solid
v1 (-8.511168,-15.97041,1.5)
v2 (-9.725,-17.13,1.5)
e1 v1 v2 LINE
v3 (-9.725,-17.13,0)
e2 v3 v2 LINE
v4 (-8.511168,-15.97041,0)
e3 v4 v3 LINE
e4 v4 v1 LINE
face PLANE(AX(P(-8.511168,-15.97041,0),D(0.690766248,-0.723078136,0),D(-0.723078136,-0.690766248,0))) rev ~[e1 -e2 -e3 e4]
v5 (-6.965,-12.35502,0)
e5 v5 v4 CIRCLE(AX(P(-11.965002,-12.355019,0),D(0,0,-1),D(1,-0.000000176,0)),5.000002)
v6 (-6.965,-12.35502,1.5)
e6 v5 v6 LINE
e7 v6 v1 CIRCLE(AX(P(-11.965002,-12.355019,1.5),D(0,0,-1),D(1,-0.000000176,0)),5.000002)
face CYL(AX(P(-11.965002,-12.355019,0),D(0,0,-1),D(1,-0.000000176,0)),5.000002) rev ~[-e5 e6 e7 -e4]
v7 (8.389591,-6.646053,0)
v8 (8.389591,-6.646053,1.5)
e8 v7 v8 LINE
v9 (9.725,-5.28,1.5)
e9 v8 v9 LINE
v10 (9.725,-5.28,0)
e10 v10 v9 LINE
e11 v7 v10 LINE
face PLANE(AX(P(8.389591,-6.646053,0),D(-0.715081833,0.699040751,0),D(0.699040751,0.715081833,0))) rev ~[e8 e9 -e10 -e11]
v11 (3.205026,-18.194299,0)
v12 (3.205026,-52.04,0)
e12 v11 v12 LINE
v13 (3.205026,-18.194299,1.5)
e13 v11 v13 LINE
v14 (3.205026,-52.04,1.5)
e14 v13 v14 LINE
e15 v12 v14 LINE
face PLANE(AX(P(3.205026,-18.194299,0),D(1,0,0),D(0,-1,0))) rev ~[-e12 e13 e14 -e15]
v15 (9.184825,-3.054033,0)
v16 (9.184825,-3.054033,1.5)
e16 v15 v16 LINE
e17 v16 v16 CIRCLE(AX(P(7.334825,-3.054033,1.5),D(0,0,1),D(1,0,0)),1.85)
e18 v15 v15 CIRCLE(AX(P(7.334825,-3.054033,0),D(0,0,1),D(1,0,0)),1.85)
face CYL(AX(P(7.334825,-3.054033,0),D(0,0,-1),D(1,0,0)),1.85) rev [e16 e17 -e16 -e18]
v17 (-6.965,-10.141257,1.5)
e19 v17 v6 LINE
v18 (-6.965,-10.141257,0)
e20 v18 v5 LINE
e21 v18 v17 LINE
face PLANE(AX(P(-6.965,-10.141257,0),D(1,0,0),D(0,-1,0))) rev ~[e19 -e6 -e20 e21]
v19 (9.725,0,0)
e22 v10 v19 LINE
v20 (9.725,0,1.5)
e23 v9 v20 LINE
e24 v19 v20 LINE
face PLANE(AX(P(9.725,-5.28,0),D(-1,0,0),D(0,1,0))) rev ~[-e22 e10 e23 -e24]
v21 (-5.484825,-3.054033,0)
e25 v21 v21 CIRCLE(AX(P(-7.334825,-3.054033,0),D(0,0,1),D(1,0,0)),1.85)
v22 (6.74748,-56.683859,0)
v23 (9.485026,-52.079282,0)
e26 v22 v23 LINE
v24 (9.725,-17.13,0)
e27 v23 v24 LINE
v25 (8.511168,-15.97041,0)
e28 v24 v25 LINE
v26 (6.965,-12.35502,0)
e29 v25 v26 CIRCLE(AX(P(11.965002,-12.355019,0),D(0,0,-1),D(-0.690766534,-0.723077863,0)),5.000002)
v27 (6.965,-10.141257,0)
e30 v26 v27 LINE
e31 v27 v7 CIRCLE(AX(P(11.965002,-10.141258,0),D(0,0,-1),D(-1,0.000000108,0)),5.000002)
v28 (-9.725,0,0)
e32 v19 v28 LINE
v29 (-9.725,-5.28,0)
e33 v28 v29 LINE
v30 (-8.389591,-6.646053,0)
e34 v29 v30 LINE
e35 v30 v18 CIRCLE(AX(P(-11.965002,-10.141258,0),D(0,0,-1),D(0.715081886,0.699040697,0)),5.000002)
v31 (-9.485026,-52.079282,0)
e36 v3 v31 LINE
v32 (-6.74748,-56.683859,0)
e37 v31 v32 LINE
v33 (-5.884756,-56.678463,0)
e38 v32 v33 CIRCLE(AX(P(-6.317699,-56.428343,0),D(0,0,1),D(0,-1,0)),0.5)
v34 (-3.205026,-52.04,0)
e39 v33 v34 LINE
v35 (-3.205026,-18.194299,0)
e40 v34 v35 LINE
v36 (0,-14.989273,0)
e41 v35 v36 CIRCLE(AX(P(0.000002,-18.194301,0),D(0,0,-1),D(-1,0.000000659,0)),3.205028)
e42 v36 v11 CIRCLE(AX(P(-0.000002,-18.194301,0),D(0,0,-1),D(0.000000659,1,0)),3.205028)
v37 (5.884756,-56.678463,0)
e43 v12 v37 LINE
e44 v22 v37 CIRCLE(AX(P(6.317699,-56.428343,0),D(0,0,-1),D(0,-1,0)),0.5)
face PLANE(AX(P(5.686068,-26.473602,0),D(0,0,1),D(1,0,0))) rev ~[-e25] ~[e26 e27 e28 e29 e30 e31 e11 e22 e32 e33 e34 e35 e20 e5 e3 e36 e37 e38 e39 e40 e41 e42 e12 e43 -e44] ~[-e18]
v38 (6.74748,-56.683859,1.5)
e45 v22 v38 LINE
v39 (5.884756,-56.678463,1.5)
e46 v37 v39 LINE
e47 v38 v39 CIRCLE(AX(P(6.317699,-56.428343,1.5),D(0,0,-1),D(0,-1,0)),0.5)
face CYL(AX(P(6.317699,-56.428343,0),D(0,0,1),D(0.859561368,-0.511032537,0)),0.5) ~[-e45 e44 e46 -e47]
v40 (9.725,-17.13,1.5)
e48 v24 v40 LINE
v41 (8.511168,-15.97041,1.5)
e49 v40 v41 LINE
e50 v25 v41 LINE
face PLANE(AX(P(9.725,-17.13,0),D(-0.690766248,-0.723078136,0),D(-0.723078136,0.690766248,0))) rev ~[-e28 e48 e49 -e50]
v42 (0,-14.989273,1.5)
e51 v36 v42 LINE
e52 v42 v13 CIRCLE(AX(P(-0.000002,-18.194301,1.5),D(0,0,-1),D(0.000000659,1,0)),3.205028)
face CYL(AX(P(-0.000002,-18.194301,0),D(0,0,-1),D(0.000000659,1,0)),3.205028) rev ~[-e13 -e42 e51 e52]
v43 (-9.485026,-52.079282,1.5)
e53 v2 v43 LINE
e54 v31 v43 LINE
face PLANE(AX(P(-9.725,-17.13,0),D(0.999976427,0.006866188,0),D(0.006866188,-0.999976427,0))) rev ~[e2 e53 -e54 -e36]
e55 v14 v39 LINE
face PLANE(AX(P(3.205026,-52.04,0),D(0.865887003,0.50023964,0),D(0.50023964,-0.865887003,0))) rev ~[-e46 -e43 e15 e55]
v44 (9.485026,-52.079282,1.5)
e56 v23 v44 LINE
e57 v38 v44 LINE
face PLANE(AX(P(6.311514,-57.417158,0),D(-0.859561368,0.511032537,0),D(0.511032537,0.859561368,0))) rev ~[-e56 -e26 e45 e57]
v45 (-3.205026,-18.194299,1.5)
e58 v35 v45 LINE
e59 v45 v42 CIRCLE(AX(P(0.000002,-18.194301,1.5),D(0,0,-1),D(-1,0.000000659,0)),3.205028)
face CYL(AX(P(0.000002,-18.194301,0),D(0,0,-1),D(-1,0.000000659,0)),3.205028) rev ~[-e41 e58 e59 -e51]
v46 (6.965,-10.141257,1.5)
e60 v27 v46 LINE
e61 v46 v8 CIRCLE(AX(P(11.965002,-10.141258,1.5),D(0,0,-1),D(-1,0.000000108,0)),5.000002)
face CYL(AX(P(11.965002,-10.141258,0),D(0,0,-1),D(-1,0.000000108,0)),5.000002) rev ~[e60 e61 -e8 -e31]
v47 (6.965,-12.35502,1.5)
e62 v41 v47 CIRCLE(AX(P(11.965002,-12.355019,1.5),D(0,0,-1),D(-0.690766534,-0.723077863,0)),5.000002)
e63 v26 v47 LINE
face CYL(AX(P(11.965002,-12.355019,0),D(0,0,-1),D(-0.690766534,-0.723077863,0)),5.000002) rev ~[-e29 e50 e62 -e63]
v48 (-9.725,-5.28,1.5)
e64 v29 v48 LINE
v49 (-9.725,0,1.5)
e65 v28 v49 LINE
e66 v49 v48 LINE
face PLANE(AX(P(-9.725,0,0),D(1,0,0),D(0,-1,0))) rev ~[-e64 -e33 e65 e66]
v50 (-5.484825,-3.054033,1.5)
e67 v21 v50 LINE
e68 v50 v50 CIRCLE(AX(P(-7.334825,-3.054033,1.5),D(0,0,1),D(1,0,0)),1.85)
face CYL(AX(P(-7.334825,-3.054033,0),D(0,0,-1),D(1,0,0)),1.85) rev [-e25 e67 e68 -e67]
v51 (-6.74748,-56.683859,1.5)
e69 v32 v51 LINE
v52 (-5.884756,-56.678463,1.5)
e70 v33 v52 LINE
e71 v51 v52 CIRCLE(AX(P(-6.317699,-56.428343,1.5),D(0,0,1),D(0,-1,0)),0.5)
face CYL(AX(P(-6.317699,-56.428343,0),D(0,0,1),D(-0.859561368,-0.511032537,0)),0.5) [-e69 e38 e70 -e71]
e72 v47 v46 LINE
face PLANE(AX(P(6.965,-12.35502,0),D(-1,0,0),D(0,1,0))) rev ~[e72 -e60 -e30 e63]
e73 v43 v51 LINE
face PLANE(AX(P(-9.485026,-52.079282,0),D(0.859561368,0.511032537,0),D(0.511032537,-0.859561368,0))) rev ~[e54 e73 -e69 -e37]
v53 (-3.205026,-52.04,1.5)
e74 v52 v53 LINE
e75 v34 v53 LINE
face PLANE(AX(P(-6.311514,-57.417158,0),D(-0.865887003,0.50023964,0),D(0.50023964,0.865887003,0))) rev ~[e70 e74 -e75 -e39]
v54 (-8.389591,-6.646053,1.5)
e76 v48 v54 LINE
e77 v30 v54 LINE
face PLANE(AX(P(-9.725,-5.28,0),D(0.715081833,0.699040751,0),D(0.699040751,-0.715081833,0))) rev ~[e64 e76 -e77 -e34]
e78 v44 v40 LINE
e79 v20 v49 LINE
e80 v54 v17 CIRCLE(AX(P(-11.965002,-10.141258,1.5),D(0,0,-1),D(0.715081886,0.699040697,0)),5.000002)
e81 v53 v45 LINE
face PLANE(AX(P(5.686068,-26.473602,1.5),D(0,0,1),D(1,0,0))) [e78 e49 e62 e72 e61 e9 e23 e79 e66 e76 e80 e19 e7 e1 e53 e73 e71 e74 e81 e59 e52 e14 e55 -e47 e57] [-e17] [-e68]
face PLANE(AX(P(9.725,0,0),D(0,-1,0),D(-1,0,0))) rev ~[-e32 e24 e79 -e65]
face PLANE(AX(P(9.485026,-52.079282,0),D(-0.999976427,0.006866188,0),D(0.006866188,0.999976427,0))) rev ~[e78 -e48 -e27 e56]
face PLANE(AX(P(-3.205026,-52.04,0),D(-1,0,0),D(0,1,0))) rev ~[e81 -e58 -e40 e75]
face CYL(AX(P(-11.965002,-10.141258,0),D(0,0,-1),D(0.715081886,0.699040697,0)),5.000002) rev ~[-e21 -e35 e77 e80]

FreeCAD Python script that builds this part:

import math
import FreeCAD as App
import Part
import Sketcher
from FreeCAD import Vector


def edges_at(feature, points):
    """Names of the edges that pass closest to the given points."""
    edges = feature.Shape.Edges
    near = lambda p: min(range(len(edges)), key=lambda i: edges[i].distToShape(Part.Vertex(*p))[0])
    return sorted({f"Edge{near(p) + 1}" for p in points})

doc = App.newDocument("Part")
params = doc.addObject("Spreadsheet::Sheet", "Params")
for row, (alias, value) in enumerate([
    ("sketch1_radius", "5.000002 mm"),
    ("sketch1_diameter", "3.7 mm"),
    ("sketch1_width", "19.45 mm"),
    ("sketch1_height", "5.28 mm"),
    ("sketch1_length", "6.21 mm"),
    ("pad1_length", "1.5 mm"),
    ("fillet_radius", "0.5 mm"),
], start=1):
    params.set(f"A{row}", alias)
    params.set(f"B{row}", "=" + value)
    params.setAlias(f"B{row}", alias)

body = doc.addObject("PartDesign::Body", "Body")

# Sketch on XY plane
sketch1 = body.newObject("Sketcher::SketchObject", "Sketch")
sketch1.AttachmentSupport = (doc.getObject("XY_Plane"), [""])
sketch1.MapMode = "FlatFace"
sketch1.addGeometry([
    Part.LineSegment(Vector(9.7, 0, 0), Vector(-9.7, 0, 0)),  # 0
    Part.LineSegment(Vector(-9.7, 0, 0), Vector(-9.7, -5.3, 0)),  # 1
    Part.LineSegment(Vector(-9.7, -5.3, 0), Vector(-8.4, -6.6, 0)),  # 2
    Part.ArcOfCircle(Part.Circle(Vector(-12, -10.1, 0), Vector(0, 0, 1), 5), math.radians(0), math.radians(44)),  # 3
    Part.LineSegment(Vector(-7, -10.1, 0), Vector(-7, -12.4, 0)),  # 4
    Part.ArcOfCircle(Part.Circle(Vector(-12, -12.4, 0), Vector(0, 0, 1), 5), math.radians(-46), math.radians(0)),  # 5
    Part.LineSegment(Vector(-8.5, -16, 0), Vector(-9.7, -17.1, 0)),  # 6
    Part.LineSegment(Vector(-9.7, -17.1, 0), Vector(-9.5, -52.1, 0)),  # 7
    Part.LineSegment(Vector(-9.5, -52.1, 0), Vector(-6.3, -57.4, 0)),  # 8
    Part.LineSegment(Vector(-6.3, -57.4, 0), Vector(-3.2, -52, 0)),  # 9
    Part.LineSegment(Vector(-3.2, -52, 0), Vector(-3.2, -18.2, 0)),  # 10
    Part.ArcOfCircle(Part.Circle(Vector(0, -18.2, 0), Vector(0, 0, 1), 3.2), math.radians(90), math.radians(180)),  # 11
    Part.ArcOfCircle(Part.Circle(Vector(0, -18.2, 0), Vector(0, 0, 1), 3.2), math.radians(0), math.radians(90)),  # 12
    Part.LineSegment(Vector(3.2, -18.2, 0), Vector(3.2, -52, 0)),  # 13
    Part.LineSegment(Vector(3.2, -52, 0), Vector(6.3, -57.4, 0)),  # 14
    Part.LineSegment(Vector(6.3, -57.4, 0), Vector(9.5, -52.1, 0)),  # 15
    Part.LineSegment(Vector(9.5, -52.1, 0), Vector(9.7, -17.1, 0)),  # 16
    Part.LineSegment(Vector(9.7, -17.1, 0), Vector(8.5, -16, 0)),  # 17
    Part.ArcOfCircle(Part.Circle(Vector(12, -12.4, 0), Vector(0, 0, 1), 5), math.radians(-180), math.radians(-134)),  # 18
    Part.LineSegment(Vector(7, -12.4, 0), Vector(7, -10.1, 0)),  # 19
    Part.ArcOfCircle(Part.Circle(Vector(12, -10.1, 0), Vector(0, 0, 1), 5), math.radians(136), math.radians(180)),  # 20
    Part.LineSegment(Vector(8.4, -6.6, 0), Vector(9.7, -5.3, 0)),  # 21
    Part.LineSegment(Vector(9.7, -5.3, 0), Vector(9.7, 0, 0)),  # 22
    Part.Circle(Vector(-7.3, -3.1, 0), Vector(0, 0, 1), 1.9),  # 23
    Part.Circle(Vector(7.3, -3.1, 0), Vector(0, 0, 1), 1.9),  # 24
], False)
sketch1.addConstraint([
    Sketcher.Constraint("Coincident", 0, 2, 1, 1),
    Sketcher.Constraint("Coincident", 1, 2, 2, 1),
    Sketcher.Constraint("Tangent", 2, 2, 3, 2),
    Sketcher.Constraint("Tangent", 3, 1, 4, 1),
    Sketcher.Constraint("Tangent", 4, 2, 5, 2),
    Sketcher.Constraint("Tangent", 5, 1, 6, 1),
    Sketcher.Constraint("Coincident", 6, 2, 7, 1),
    Sketcher.Constraint("Coincident", 7, 2, 8, 1),
    Sketcher.Constraint("Coincident", 8, 2, 9, 1),
    Sketcher.Constraint("Coincident", 9, 2, 10, 1),
    Sketcher.Constraint("Tangent", 10, 2, 11, 2),
    Sketcher.Constraint("Tangent", 11, 1, 12, 2),
    Sketcher.Constraint("Tangent", 12, 1, 13, 1),
    Sketcher.Constraint("Coincident", 13, 2, 14, 1),
    Sketcher.Constraint("Coincident", 14, 2, 15, 1),
    Sketcher.Constraint("Coincident", 15, 2, 16, 1),
    Sketcher.Constraint("Coincident", 16, 2, 17, 1),
    Sketcher.Constraint("Tangent", 17, 2, 18, 2),
    Sketcher.Constraint("Tangent", 18, 1, 19, 1),
    Sketcher.Constraint("Tangent", 19, 2, 20, 2),
    Sketcher.Constraint("Tangent", 20, 1, 21, 1),
    Sketcher.Constraint("Coincident", 21, 2, 22, 1),
    Sketcher.Constraint("Coincident", 22, 2, 0, 1),
    Sketcher.Constraint("Horizontal", 0),
    Sketcher.Constraint("Vertical", 1),
    Sketcher.Constraint("Vertical", 4),
    Sketcher.Constraint("Vertical", 10),
    Sketcher.Constraint("Vertical", 13),
    Sketcher.Constraint("Vertical", 19),
    Sketcher.Constraint("Vertical", 22),
    Sketcher.Constraint("Equal", 3, 5),
    Sketcher.Constraint("Equal", 11, 12),
    Sketcher.Constraint("Equal", 5, 18),
    Sketcher.Constraint("Equal", 18, 20),
    Sketcher.Constraint("Equal", 23, 24),
    Sketcher.Constraint("Symmetric", 0, 2, 22, 2, -1, 1),
    Sketcher.Constraint("Symmetric", 5, 3, 18, 3, -2),
    Sketcher.Constraint("Symmetric", 23, 3, 24, 3, -2),
    Sketcher.Constraint("Symmetric", 9, 2, 13, 2, -2),
    Sketcher.Constraint("Symmetric", 8, 2, 14, 2, -2),
    Sketcher.Constraint("Symmetric", 7, 2, 15, 2, -2),
    Sketcher.Constraint("Symmetric", 6, 2, 16, 2, -2),
    Sketcher.Constraint("Symmetric", 2, 2, 20, 1, -2),
    Sketcher.Constraint("PointOnObject", 11, 1, -2),
    Sketcher.Constraint("Vertical", 1, 2, 6, 2),
    Sketcher.Constraint("Equal", 8, 9),
    Sketcher.Constraint("Radius", 3, 5.000002),
    Sketcher.Constraint("Diameter", 23, 3.7),
    Sketcher.Constraint("DistanceX", 0, 2, 0, 1, 19.45),
    Sketcher.Constraint("DistanceY", 1, 2, 1, 1, 5.28),
    Sketcher.Constraint("Distance", 8, 6.21),
    Sketcher.Constraint("DistanceY", 6, 2, -1, 1, 17.13),
    Sketcher.Constraint("DistanceY", 9, 2, -1, 1, 52.04),
    Sketcher.Constraint("Radius", 11, 3.205028),
    Sketcher.Constraint("DistanceX", 3, 3, 0, 2, 2.240002),
    Sketcher.Constraint("DistanceX", 7, 2, 9, 2, 6.28),
    Sketcher.Constraint("DistanceY", 10, 1, 10, 2, 33.845701),
    Sketcher.Constraint("Distance", 6, 1.678701),
    Sketcher.Constraint("DistanceY", 4, 2, 4, 1, 2.213763),
    Sketcher.Constraint("DistanceY", 12, 3, 23, 3, 15.140268),
    Sketcher.Constraint("DistanceX", 23, 3, 24, 3, 14.66965),
    Sketcher.Constraint("DistanceY", 7, 2, 6, 2, 34.949282),
])
sketch1.setExpression("Constraints[46]", "Params.sketch1_radius")
sketch1.setExpression("Constraints[47]", "Params.sketch1_diameter")
sketch1.setExpression("Constraints[48]", "Params.sketch1_width")
sketch1.setExpression("Constraints[49]", "Params.sketch1_height")
sketch1.setExpression("Constraints[50]", "Params.sketch1_length")
pad1 = body.newObject("PartDesign::Pad", "Pad")
pad1.Profile = sketch1
pad1.setExpression("Length", "Params.pad1_length")
doc.recompute()

fillet = body.newObject("PartDesign::Fillet", "Fillet")
fillet.Base = (pad1, edges_at(pad1, [(-6.312, -57.417, 0.75), (6.312, -57.417, 0.75)]))
fillet.setExpression("Radius", "Params.fillet_radius")

doc.recompute()
